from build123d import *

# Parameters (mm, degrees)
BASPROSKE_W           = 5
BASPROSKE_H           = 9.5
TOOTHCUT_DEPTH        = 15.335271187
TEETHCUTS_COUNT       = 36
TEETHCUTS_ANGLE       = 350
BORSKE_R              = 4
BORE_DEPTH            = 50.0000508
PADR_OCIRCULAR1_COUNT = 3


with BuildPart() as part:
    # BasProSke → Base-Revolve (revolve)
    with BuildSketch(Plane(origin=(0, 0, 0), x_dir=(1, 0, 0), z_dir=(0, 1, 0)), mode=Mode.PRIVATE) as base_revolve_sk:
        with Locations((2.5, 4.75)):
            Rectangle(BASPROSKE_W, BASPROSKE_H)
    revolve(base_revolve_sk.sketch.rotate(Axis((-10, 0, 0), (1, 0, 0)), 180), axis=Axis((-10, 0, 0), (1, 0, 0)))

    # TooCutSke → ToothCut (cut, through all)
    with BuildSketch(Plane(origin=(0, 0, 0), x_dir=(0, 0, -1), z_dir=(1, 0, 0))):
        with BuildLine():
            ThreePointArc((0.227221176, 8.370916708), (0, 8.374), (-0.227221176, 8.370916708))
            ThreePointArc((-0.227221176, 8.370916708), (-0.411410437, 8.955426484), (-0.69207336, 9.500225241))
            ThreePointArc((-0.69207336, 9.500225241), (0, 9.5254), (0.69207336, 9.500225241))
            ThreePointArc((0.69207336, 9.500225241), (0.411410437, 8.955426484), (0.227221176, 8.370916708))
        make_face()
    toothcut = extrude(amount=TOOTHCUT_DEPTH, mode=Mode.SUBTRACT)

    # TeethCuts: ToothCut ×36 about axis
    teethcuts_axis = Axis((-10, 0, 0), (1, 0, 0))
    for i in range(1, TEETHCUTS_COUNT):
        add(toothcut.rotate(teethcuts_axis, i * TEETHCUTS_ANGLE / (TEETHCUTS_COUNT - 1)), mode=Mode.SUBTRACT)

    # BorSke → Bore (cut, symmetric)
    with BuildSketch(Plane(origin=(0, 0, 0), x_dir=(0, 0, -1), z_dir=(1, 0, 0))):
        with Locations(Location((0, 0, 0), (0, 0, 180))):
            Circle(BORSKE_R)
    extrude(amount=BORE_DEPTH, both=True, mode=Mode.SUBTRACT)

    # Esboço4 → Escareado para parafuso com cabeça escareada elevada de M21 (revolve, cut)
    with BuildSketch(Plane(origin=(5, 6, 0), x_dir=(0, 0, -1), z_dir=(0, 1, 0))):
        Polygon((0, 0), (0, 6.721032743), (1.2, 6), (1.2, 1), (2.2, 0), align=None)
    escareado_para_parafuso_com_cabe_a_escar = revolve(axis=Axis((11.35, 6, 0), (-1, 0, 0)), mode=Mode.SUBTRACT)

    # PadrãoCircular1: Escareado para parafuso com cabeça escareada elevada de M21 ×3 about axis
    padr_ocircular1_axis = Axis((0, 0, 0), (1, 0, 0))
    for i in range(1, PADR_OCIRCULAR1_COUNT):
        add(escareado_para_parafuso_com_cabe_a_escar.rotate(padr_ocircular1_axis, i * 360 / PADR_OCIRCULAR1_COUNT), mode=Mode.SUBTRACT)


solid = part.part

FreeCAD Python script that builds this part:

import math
import FreeCAD as App
import Part
import Sketcher
from FreeCAD import Vector
Q = App.Units.Quantity

doc = App.newDocument("Part")
params = doc.addObject("Spreadsheet::Sheet", "Params")
for row, (alias, value) in enumerate([
    ("sketch1_width", "5 mm"),
    ("sketch1_height", "9.5 mm"),
    ("revolution_angle", "360 deg"),
    ("sketch2_radius", "3.6 mm"),
    ("sketch3_diameter", "8 mm"),
    ("pocket2_length", "100.000102 mm"),
    ("sketch4_width", "5 mm"),
    ("sketch4_height", "2.2 mm"),
    ("groove_angle", "360 deg"),
], start=1):
    params.set(f"A{row}", alias)
    params.set(f"B{row}", "=" + value)
    params.setAlias(f"B{row}", alias)

body = doc.addObject("PartDesign::Body", "Body")

sketch1 = doc.addObject("Sketcher::SketchObject", "Sketch")
body.addObject(sketch1)
sketch1.AttachmentSupport = (doc.XZ_Plane, [""])
sketch1.MapMode = "FlatFace"
sketch1.addGeometry(Part.LineSegment(Vector(0, -9.5, 0), Vector(0, 0, 0)), False)
sketch1.addGeometry(Part.LineSegment(Vector(0, 0, 0), Vector(5, 0, 0)), False)
sketch1.addGeometry(Part.LineSegment(Vector(5, 0, 0), Vector(5, -9.5, 0)), False)
sketch1.addGeometry(Part.LineSegment(Vector(5, -9.5, 0), Vector(0, -9.5, 0)), False)
sketch1.addConstraint(Sketcher.Constraint("Coincident", 0, 2, 1, 1))
sketch1.addConstraint(Sketcher.Constraint("Coincident", 1, 2, 2, 1))
sketch1.addConstraint(Sketcher.Constraint("Coincident", 2, 2, 3, 1))
sketch1.addConstraint(Sketcher.Constraint("Coincident", 3, 2, 0, 1))
sketch1.addConstraint(Sketcher.Constraint("Vertical", 0))
sketch1.addConstraint(Sketcher.Constraint("Horizontal", 1))
sketch1.addConstraint(Sketcher.Constraint("Vertical", 2))
sketch1.addConstraint(Sketcher.Constraint("Horizontal", 3))
sketch1.addConstraint(Sketcher.Constraint("Coincident", 0, 2, -1, 1))
sketch1.addConstraint(Sketcher.Constraint("DistanceX", 1, 1, 1, 2, 5.0))
sketch1.addConstraint(Sketcher.Constraint("DistanceY", 0, 1, 0, 2, 9.5))
sketch1.setExpression("Constraints[9]", "Params.sketch1_width")
sketch1.setExpression("Constraints[10]", "Params.sketch1_height")
revolution = doc.addObject("PartDesign::Revolution", "Revolution")
body.addObject(revolution)
revolution.Profile = sketch1
revolution.ReferenceAxis = (sketch1, ["H_Axis"])
revolution.setExpression("Angle", "Params.revolution_angle")

sketch2 = doc.addObject("Sketcher::SketchObject", "Sketch001")
body.addObject(sketch2)
sketch2.AttachmentSupport = (doc.YZ_Plane, [""])
sketch2.MapMode = "FlatFace"
sketch2.addGeometry(Part.ArcOfCircle(Part.Circle(Vector(0.000001, 0, 0), Vector(0, 0, 1), 8.373999), math.radians(-1.554862), math.radians(1.554862)), False)
sketch2.addGeometry(Part.ArcOfCircle(Part.Circle(Vector(7.585123, -3.740415, 0), Vector(0, 0, 1), 3.6), math.radians(57.861159), math.radians(77.392211)), False)
sketch2.addGeometry(Part.ArcOfCircle(Part.Circle(Vector(0, 0, 0), Vector(0, 0, 1), 9.5254), math.radians(-4.166529), math.radians(4.166529)), False)
sketch2.addGeometry(Part.ArcOfCircle(Part.Circle(Vector(7.585123, 3.740415, 0), Vector(0, 0, 1), 3.6), math.radians(-77.392211), math.radians(-57.861159)), False)
sketch2.addConstraint(Sketcher.Constraint("Coincident", 0, 1, 1, 2))
sketch2.addConstraint(Sketcher.Constraint("Coincident", 1, 1, 2, 1))
sketch2.addConstraint(Sketcher.Constraint("Coincident", 2, 2, 3, 2))
sketch2.addConstraint(Sketcher.Constraint("Coincident", 3, 1, 0, 2))
sketch2.addConstraint(Sketcher.Constraint("Coincident", 0, 3, -1, 1))
sketch2.addConstraint(Sketcher.Constraint("Coincident", 2, 3, -1, 1))
sketch2.addConstraint(Sketcher.Constraint("Equal", 1, 3))
sketch2.addConstraint(Sketcher.Constraint("Symmetric", 1, 3, 3, 3, -1))
sketch2.addConstraint(Sketcher.Constraint("Radius", 1, 3.6))
sketch2.addConstraint(Sketcher.Constraint("Radius", 0, 8.373999))
sketch2.addConstraint(Sketcher.Constraint("Radius", 2, 9.5254))
sketch2.addConstraint(Sketcher.Constraint("DistanceX", 1, 3, 1, 1, 1.915102))
sketch2.addConstraint(Sketcher.Constraint("DistanceY", 0, 1, -1, 1, 0.227221))
sketch2.setExpression("Constraints[8]", "Params.sketch2_radius")
pocket1 = doc.addObject("PartDesign::Pocket", "Pocket")
body.addObject(pocket1)
pocket1.Profile = sketch2
pocket1.Type = "ThroughAll"
pocket1.Reversed = True
doc.recompute()

polarpattern = doc.addObject("PartDesign::PolarPattern", "PolarPattern")
body.addObject(polarpattern)
polarpattern.Originals = [pocket1]
polarpattern.Axis = (doc.X_Axis, [""])
polarpattern.Angle = 360
polarpattern.Occurrences = 36
body.Tip = polarpattern

sketch3 = doc.addObject("Sketcher::SketchObject", "Sketch002")
body.addObject(sketch3)
sketch3.AttachmentSupport = (doc.YZ_Plane, [""])
sketch3.MapMode = "FlatFace"
sketch3.addGeometry(Part.Circle(Vector(0, 0, 0), Vector(0, 0, 1), 4), False)
sketch3.addConstraint(Sketcher.Constraint("Coincident", 0, 3, -1, 1))
sketch3.addConstraint(Sketcher.Constraint("Diameter", 0, 8.0))
sketch3.setExpression("Constraints[1]", "Params.sketch3_diameter")
pocket2 = doc.addObject("PartDesign::Pocket", "Pocket001")
body.addObject(pocket2)
pocket2.Profile = sketch3
pocket2.setExpression("Length", "Params.pocket2_length")
pocket2.Midplane = True

sketch4 = doc.addObject("Sketcher::SketchObject", "Sketch003")
body.addObject(sketch4)
sketch4.AttachmentSupport = (doc.XZ_Plane, [""])
sketch4.MapMode = "FlatFace"
sketch4.AttachmentOffset = App.Placement(Vector(0, 0, -6), App.Rotation())
sketch4.addGeometry(Part.LineSegment(Vector(-1.721033, 0, 0), Vector(5, 0, 0)), False)
sketch4.addGeometry(Part.LineSegment(Vector(5, 0, 0), Vector(5, -2.2, 0)), False)
sketch4.addGeometry(Part.LineSegment(Vector(5, -2.2, 0), Vector(4, -1.2, 0)), False)
sketch4.addGeometry(Part.LineSegment(Vector(4, -1.2, 0), Vector(-1, -1.2, 0)), False)
sketch4.addGeometry(Part.LineSegment(Vector(-1, -1.2, 0), Vector(-1.721033, 0, 0)), False)
sketch4.addConstraint(Sketcher.Constraint("Coincident", 0, 2, 1, 1))
sketch4.addConstraint(Sketcher.Constraint("Coincident", 1, 2, 2, 1))
sketch4.addConstraint(Sketcher.Constraint("Coincident", 2, 2, 3, 1))
sketch4.addConstraint(Sketcher.Constraint("Coincident", 3, 2, 4, 1))
sketch4.addConstraint(Sketcher.Constraint("Coincident", 4, 2, 0, 1))
sketch4.addConstraint(Sketcher.Constraint("Horizontal", 0))
sketch4.addConstraint(Sketcher.Constraint("Vertical", 1))
sketch4.addConstraint(Sketcher.Constraint("Horizontal", 3))
sketch4.addConstraint(Sketcher.Constraint("PointOnObject", 0, 2, -1))
sketch4.addConstraint(Sketcher.Constraint("DistanceX", 3, 2, 3, 1, 5.0))
sketch4.addConstraint(Sketcher.Constraint("Angle", 2, Q("135 deg")))
sketch4.addConstraint(Sketcher.Constraint("Angle", 4, Q("121 deg")))
sketch4.addConstraint(Sketcher.Constraint("DistanceY", 1, 2, 1, 1, 2.2))
sketch4.addConstraint(Sketcher.Constraint("DistanceX", -1, 1, 0, 2, 5.0))
sketch4.addConstraint(Sketcher.Constraint("DistanceX", -1, 1, 2, 2, 4.0))
sketch4.setExpression("Constraints[9]", "Params.sketch4_width")
sketch4.setExpression("Constraints[12]", "Params.sketch4_height")
groove = doc.addObject("PartDesign::Groove", "Groove")
body.addObject(groove)
groove.Profile = sketch4
groove.ReferenceAxis = (sketch4, ["H_Axis"])
groove.setExpression("Angle", "Params.groove_angle")
doc.recompute()

polarpattern2 = doc.addObject("PartDesign::PolarPattern", "PolarPattern001")
body.addObject(polarpattern2)
polarpattern2.Originals = [groove]
polarpattern2.Axis = (doc.X_Axis, [""])
polarpattern2.Angle = 360
polarpattern2.Occurrences = 3
body.Tip = polarpattern2

doc.recompute()
